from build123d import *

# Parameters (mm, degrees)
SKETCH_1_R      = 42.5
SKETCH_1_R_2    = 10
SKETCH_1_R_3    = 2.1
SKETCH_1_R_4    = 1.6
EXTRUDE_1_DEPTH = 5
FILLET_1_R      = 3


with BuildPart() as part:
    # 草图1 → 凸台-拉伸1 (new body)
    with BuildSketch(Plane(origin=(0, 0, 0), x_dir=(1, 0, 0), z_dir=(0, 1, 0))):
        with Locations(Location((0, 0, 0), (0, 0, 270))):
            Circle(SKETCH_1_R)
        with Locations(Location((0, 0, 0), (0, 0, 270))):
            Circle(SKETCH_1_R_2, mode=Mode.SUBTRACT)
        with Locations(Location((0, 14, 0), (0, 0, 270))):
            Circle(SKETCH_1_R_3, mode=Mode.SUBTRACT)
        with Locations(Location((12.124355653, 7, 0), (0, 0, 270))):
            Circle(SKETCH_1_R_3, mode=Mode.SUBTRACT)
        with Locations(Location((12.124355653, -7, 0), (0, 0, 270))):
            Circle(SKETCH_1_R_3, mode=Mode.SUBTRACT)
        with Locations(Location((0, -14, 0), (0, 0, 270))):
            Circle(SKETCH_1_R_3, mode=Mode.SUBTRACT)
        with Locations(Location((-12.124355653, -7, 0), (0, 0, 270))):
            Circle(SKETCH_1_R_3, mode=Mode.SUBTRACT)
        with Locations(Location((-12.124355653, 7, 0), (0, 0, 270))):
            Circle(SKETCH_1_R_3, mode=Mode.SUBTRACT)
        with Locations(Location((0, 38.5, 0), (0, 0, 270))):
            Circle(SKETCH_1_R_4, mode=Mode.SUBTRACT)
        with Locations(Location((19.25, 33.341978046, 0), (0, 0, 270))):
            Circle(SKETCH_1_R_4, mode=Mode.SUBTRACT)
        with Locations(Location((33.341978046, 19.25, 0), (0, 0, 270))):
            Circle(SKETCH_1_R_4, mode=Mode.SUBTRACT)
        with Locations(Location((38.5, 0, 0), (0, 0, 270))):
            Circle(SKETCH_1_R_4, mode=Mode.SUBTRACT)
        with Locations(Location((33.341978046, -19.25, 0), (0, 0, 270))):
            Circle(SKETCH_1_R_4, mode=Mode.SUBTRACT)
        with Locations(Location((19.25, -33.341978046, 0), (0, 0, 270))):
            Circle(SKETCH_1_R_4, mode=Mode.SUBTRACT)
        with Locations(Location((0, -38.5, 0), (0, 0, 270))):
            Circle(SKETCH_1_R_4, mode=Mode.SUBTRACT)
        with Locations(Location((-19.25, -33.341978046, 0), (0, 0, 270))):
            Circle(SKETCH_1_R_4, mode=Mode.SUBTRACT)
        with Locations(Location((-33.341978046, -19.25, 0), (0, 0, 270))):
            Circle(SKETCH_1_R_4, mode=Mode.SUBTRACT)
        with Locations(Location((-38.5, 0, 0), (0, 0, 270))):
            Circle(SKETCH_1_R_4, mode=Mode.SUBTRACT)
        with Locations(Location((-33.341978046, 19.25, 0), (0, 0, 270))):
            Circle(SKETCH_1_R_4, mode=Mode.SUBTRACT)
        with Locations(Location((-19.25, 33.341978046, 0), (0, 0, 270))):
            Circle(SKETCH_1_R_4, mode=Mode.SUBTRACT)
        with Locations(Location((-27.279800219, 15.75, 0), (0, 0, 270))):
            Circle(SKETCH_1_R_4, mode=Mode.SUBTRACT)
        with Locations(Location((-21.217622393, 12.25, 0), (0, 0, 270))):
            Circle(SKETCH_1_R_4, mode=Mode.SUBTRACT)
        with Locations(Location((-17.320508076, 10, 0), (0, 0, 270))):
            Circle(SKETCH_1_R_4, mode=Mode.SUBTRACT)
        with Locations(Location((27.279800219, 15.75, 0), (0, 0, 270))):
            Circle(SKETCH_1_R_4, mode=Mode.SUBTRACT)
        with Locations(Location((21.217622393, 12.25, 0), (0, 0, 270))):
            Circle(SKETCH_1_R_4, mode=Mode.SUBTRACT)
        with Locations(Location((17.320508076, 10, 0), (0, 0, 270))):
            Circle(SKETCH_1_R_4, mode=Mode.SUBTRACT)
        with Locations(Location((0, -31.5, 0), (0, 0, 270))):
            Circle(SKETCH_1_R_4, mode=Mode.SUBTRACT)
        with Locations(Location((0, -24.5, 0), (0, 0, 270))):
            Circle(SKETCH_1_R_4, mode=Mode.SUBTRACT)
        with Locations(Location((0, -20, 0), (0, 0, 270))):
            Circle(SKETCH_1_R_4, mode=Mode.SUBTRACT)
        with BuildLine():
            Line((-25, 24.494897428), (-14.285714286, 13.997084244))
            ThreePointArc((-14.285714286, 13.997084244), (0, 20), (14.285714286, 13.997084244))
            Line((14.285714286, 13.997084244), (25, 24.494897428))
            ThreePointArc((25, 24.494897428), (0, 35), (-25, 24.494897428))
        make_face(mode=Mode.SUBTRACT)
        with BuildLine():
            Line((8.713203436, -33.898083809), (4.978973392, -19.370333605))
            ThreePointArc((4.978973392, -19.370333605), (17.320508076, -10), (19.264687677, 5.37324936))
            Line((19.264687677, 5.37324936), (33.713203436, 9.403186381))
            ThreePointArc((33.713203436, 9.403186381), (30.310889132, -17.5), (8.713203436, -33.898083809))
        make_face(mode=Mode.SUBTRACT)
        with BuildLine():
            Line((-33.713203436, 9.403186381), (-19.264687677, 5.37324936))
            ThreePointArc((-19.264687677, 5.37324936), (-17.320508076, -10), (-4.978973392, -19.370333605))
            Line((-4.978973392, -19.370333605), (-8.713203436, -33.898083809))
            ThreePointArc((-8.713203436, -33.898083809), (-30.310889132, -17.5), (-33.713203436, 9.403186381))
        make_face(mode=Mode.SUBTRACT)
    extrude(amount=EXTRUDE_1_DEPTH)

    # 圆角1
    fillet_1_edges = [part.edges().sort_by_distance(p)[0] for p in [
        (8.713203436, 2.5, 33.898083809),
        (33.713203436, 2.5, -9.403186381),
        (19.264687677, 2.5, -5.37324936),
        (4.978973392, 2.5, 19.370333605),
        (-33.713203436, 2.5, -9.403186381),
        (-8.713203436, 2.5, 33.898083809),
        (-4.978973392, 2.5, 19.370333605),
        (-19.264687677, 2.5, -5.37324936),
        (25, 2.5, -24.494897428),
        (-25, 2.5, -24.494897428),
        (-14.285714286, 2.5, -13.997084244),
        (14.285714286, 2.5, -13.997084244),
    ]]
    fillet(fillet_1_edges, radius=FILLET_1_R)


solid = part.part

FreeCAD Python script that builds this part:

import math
import FreeCAD as App
import Part
import Sketcher

V = App.Vector
Q = App.Units.Quantity


def edges_at(feature, points):
    """Names of the edges that pass closest to the given points."""
    edges = feature.Shape.Edges
    near = lambda p: min(range(len(edges)), key=lambda i: edges[i].distToShape(Part.Vertex(*p))[0])
    return sorted({f"Edge{near(p) + 1}" for p in points})

doc = App.newDocument("Part")
params = doc.addObject("Spreadsheet::Sheet", "Params")
for row, (alias, value) in enumerate([
    ("sketch1_diameter", "85 mm"),
    ("sketch1_diameter2", "20 mm"),
    ("sketch1_radius", "35 mm"),
    ("sketch1_radius2", "20 mm"),
    ("sketch1_diameter3", "3.2 mm"),
    ("pad1_length", "5 mm"),
    ("fillet_radius", "3 mm"),
], start=1):
    params.set(f"A{row}", alias)
    params.set(f"B{row}", "=" + value)
    params.setAlias(f"B{row}", alias)

body = doc.addObject("PartDesign::Body", "Body")

# Sketch on XZ plane
sketch1 = body.newObject("Sketcher::SketchObject", "Sketch")
sketch1.AttachmentSupport = (doc.getObject("XZ_Plane"), [""])
sketch1.MapMode = "FlatFace"
sketch1.addGeometry([
    Part.Circle(V(0, 0, 0), V(0, 0, 1), 42.5),  # 0
    Part.Circle(V(-33.3, -19.2, 0), V(0, 0, 1), 1.6),  # 1
    Part.Circle(V(-27.3, -15.8, 0), V(0, 0, 1), 1.6),  # 2
    Part.Circle(V(-21.2, -12.2, 0), V(0, 0, 1), 1.6),  # 3
    Part.Circle(V(-19.2, -33.3, 0), V(0, 0, 1), 1.6),  # 4
    Part.Circle(V(0, -38.5, 0), V(0, 0, 1), 1.6),  # 5
    Part.LineSegment(V(-14.3, -14, 0), V(-25, -24.5, 0)),  # 6
    Part.ArcOfCircle(Part.Circle(V(0, 0, 0), V(0, 0, 1), 35), math.radians(-136), math.radians(-44)),  # 7
    Part.LineSegment(V(25, -24.5, 0), V(14.3, -14, 0)),  # 8
    Part.ArcOfCircle(Part.Circle(V(0, 0, 0), V(0, 0, 1), 20), math.radians(-136), math.radians(-44)),  # 9
    Part.Circle(V(-17.3, -10, 0), V(0, 0, 1), 1.6),  # 10
    Part.Circle(V(-12.1, -7, 0), V(0, 0, 1), 2.1),  # 11
    Part.Circle(V(0, -14, 0), V(0, 0, 1), 2.1),  # 12
    Part.Circle(V(-38.5, 0, 0), V(0, 0, 1), 1.6),  # 13
    Part.Circle(V(-33.3, 19.2, 0), V(0, 0, 1), 1.6),  # 14
    Part.Circle(V(-12.1, 7, 0), V(0, 0, 1), 2.1),  # 15
    Part.ArcOfCircle(Part.Circle(V(0, 0, 0), V(0, 0, 1), 35), math.radians(104), math.radians(196)),  # 16
    Part.LineSegment(V(-33.7, -9.4, 0), V(-19.3, -5.4, 0)),  # 17
    Part.ArcOfCircle(Part.Circle(V(0, 0, 0), V(0, 0, 1), 20), math.radians(104), math.radians(196)),  # 18
    Part.LineSegment(V(-5, 19.4, 0), V(-8.7, 33.9, 0)),  # 19
    Part.Circle(V(0, 0, 0), V(0, 0, 1), 10),  # 20
    Part.Circle(V(-19.2, 33.3, 0), V(0, 0, 1), 1.6),  # 21
    Part.Circle(V(19.2, -33.3, 0), V(0, 0, 1), 1.6),  # 22
    Part.Circle(V(12.1, -7, 0), V(0, 0, 1), 2.1),  # 23
    Part.Circle(V(17.3, -10, 0), V(0, 0, 1), 1.6),  # 24
    Part.Circle(V(21.2, -12.2, 0), V(0, 0, 1), 1.6),  # 25
    Part.Circle(V(27.3, -15.8, 0), V(0, 0, 1), 1.6),  # 26
    Part.Circle(V(33.3, -19.2, 0), V(0, 0, 1), 1.6),  # 27
    Part.Circle(V(38.5, 0, 0), V(0, 0, 1), 1.6),  # 28
    Part.Circle(V(0, 14, 0), V(0, 0, 1), 2.1),  # 29
    Part.Circle(V(0, 20, 0), V(0, 0, 1), 1.6),  # 30
    Part.Circle(V(12.1, 7, 0), V(0, 0, 1), 2.1),  # 31
    Part.ArcOfCircle(Part.Circle(V(0, 0, 0), V(0, 0, 1), 35), math.radians(-16), math.radians(76)),  # 32
    Part.LineSegment(V(8.7, 33.9, 0), V(5, 19.4, 0)),  # 33
    Part.ArcOfCircle(Part.Circle(V(0, 0, 0), V(0, 0, 1), 20), math.radians(-16), math.radians(76)),  # 34
    Part.LineSegment(V(19.3, -5.4, 0), V(33.7, -9.4, 0)),  # 35
    Part.Circle(V(0, 24.5, 0), V(0, 0, 1), 1.6),  # 36
    Part.Circle(V(0, 31.5, 0), V(0, 0, 1), 1.6),  # 37
    Part.Circle(V(0, 38.5, 0), V(0, 0, 1), 1.6),  # 38
    Part.Circle(V(19.2, 33.3, 0), V(0, 0, 1), 1.6),  # 39
    Part.Circle(V(33.3, 19.2, 0), V(0, 0, 1), 1.6),  # 40
], False)
sketch1.addConstraint([
    Sketcher.Constraint("Coincident", 6, 2, 7, 1),
    Sketcher.Constraint("Coincident", 7, 2, 8, 1),
    Sketcher.Constraint("Coincident", 8, 2, 9, 2),
    Sketcher.Constraint("Coincident", 9, 1, 6, 1),
    Sketcher.Constraint("Coincident", 16, 2, 17, 1),
    Sketcher.Constraint("Coincident", 17, 2, 18, 2),
    Sketcher.Constraint("Coincident", 18, 1, 19, 1),
    Sketcher.Constraint("Coincident", 19, 2, 16, 1),
    Sketcher.Constraint("Coincident", 32, 2, 33, 1),
    Sketcher.Constraint("Coincident", 33, 2, 34, 2),
    Sketcher.Constraint("Coincident", 34, 1, 35, 1),
    Sketcher.Constraint("Coincident", 35, 2, 32, 1),
    Sketcher.Constraint("Coincident", 0, 3, -1, 1),
    Sketcher.Constraint("Coincident", 7, 3, -1, 1),
    Sketcher.Constraint("Coincident", 9, 3, -1, 1),
    Sketcher.Constraint("Coincident", 16, 3, -1, 1),
    Sketcher.Constraint("Coincident", 18, 3, -1, 1),
    Sketcher.Constraint("Coincident", 20, 3, -1, 1),
    Sketcher.Constraint("Coincident", 32, 3, -1, 1),
    Sketcher.Constraint("Coincident", 34, 3, -1, 1),
    Sketcher.Constraint("Equal", 1, 2),
    Sketcher.Constraint("Equal", 2, 3),
    Sketcher.Constraint("Equal", 3, 4),
    Sketcher.Constraint("Equal", 4, 5),
    Sketcher.Constraint("Equal", 5, 10),
    Sketcher.Constraint("Equal", 11, 12),
    Sketcher.Constraint("Equal", 10, 13),
    Sketcher.Constraint("Equal", 13, 14),
    Sketcher.Constraint("Equal", 12, 15),
    Sketcher.Constraint("Equal", 7, 16),
    Sketcher.Constraint("Equal", 9, 18),
    Sketcher.Constraint("Equal", 14, 21),
    Sketcher.Constraint("Equal", 21, 22),
    Sketcher.Constraint("Equal", 15, 23),
    Sketcher.Constraint("Equal", 22, 24),
    Sketcher.Constraint("Equal", 24, 25),
    Sketcher.Constraint("Equal", 25, 26),
    Sketcher.Constraint("Equal", 26, 27),
    Sketcher.Constraint("Equal", 27, 28),
    Sketcher.Constraint("Equal", 23, 29),
    Sketcher.Constraint("Equal", 28, 30),
    Sketcher.Constraint("Equal", 29, 31),
    Sketcher.Constraint("Equal", 16, 32),
    Sketcher.Constraint("Equal", 18, 34),
    Sketcher.Constraint("Equal", 30, 36),
    Sketcher.Constraint("Equal", 36, 37),
    Sketcher.Constraint("Equal", 37, 38),
    Sketcher.Constraint("Equal", 38, 39),
    Sketcher.Constraint("Equal", 39, 40),
    Sketcher.Constraint("Symmetric", 21, 3, 22, 3, -1, 1),
    Sketcher.Constraint("Symmetric", 15, 3, 23, 3, -1, 1),
    Sketcher.Constraint("Symmetric", 14, 3, 27, 3, -1, 1),
    Sketcher.Constraint("Symmetric", 13, 3, 28, 3, -1, 1),
    Sketcher.Constraint("Symmetric", 12, 3, 29, 3, -1, 1),
    Sketcher.Constraint("Symmetric", 11, 3, 31, 3, -1, 1),
    Sketcher.Constraint("Symmetric", 5, 3, 38, 3, -1, 1),
    Sketcher.Constraint("Symmetric", 4, 3, 39, 3, -1, 1),
    Sketcher.Constraint("Symmetric", 1, 3, 40, 3, -1, 1),
    Sketcher.Constraint("Symmetric", 4, 3, 22, 3, -2),
    Sketcher.Constraint("Symmetric", 11, 3, 23, 3, -2),
    Sketcher.Constraint("Symmetric", 10, 3, 24, 3, -2),
    Sketcher.Constraint("Symmetric", 3, 3, 25, 3, -2),
    Sketcher.Constraint("Symmetric", 2, 3, 26, 3, -2),
    Sketcher.Constraint("Symmetric", 1, 3, 27, 3, -2),
    Sketcher.Constraint("PointOnObject", 5, 3, -2),
    Sketcher.Constraint("PointOnObject", 12, 3, -2),
    Sketcher.Constraint("PointOnObject", 13, 3, -1),
    Sketcher.Constraint("PointOnObject", 30, 3, -2),
    Sketcher.Constraint("PointOnObject", 36, 3, -2),
    Sketcher.Constraint("PointOnObject", 37, 3, -2),
    Sketcher.Constraint("Horizontal", 6, 2, 7, 2),
    Sketcher.Constraint("Horizontal", 8, 2, 9, 1),
    Sketcher.Constraint("Horizontal", 19, 2, 32, 2),
    Sketcher.Constraint("Horizontal", 18, 1, 33, 2),
    Sketcher.Constraint("Horizontal", 17, 2, 34, 1),
    Sketcher.Constraint("Horizontal", 16, 2, 35, 2),
    Sketcher.Constraint("Diameter", 0, Q("85 mm")),
    Sketcher.Constraint("Diameter", 20, Q("20 mm")),
    Sketcher.Constraint("Radius", 7, Q("35 mm")),
    Sketcher.Constraint("Radius", 9, Q("20 mm")),
    Sketcher.Constraint("Diameter", 1, Q("3.2 mm")),
    Sketcher.Constraint("Diameter", 11, Q("4.2 mm")),
    Sketcher.Constraint("DistanceY", 10, 3, -1, 1, Q("10 mm")),
    Sketcher.Constraint("DistanceY", 11, 3, -1, 1, Q("7 mm")),
    Sketcher.Constraint("DistanceY", 12, 3, -1, 1, Q("14 mm")),
    Sketcher.Constraint("DistanceY", -1, 1, 30, 3, Q("20 mm")),
    Sketcher.Constraint("DistanceX", 6, 2, -1, 1, Q("25 mm")),
    Sketcher.Constraint("DistanceY", 1, 3, 3, 3, Q("7 mm")),
    Sketcher.Constraint("DistanceY", 2, 3, 14, 3, Q("35 mm")),
    Sketcher.Constraint("DistanceY", 36, 3, 37, 3, Q("7 mm")),
    Sketcher.Constraint("DistanceY", 37, 3, 38, 3, Q("7 mm")),
    Sketcher.Constraint("DistanceY", 5, 3, -1, 1, Q("38.5 mm")),
    Sketcher.Constraint("DistanceX", 13, 3, -1, 1, Q("38.5 mm")),
    Sketcher.Constraint("DistanceY", 1, 3, 2, 3, Q("3.5 mm")),
    Sketcher.Constraint("DistanceX", 4, 3, 22, 3, Q("38.5 mm")),
    Sketcher.Constraint("DistanceX", 2, 3, -1, 1, Q("27.2798 mm")),
    Sketcher.Constraint("DistanceX", 1, 3, -1, 1, Q("33.341978 mm")),
    Sketcher.Constraint("DistanceY", 4, 3, -1, 1, Q("33.341978 mm")),
    Sketcher.Constraint("DistanceX", 10, 3, -1, 1, Q("17.320508 mm")),
    Sketcher.Constraint("DistanceY", 17, 2, -1, 1, Q("5.373249 mm")),
    Sketcher.Constraint("DistanceX", 8, 2, 25, 3, Q("6.931908 mm")),
    Sketcher.Constraint("DistanceX", 23, 3, 8, 2, Q("2.161359 mm")),
    Sketcher.Constraint("DistanceX", 16, 2, 3, 3, Q("12.495581 mm")),
    Sketcher.Constraint("DistanceX", 19, 2, 18, 1, Q("3.73423 mm")),
    Sketcher.Constraint("DistanceX", 3, 3, -1, 1, Q("21.217622 mm")),
    Sketcher.Constraint("DistanceX", 18, 1, -1, 1, Q("4.978973 mm")),
])
sketch1.setExpression("Constraints[76]", "Params.sketch1_diameter")
sketch1.setExpression("Constraints[77]", "Params.sketch1_diameter2")
sketch1.setExpression("Constraints[78]", "Params.sketch1_radius")
sketch1.setExpression("Constraints[79]", "Params.sketch1_radius2")
sketch1.setExpression("Constraints[80]", "Params.sketch1_diameter3")
pad1 = body.newObject("PartDesign::Pad", "Pad")
pad1.Profile = sketch1
pad1.setExpression("Length", "Params.pad1_length")
pad1.Reversed = True
doc.recompute()

fillet = body.newObject("PartDesign::Fillet", "Fillet")
fillet.Base = (pad1, edges_at(pad1, [
    (8.713, 2.5, 33.898),
    (33.713, 2.5, -9.403),
    (19.265, 2.5, -5.373),
    (4.979, 2.5, 19.37),
    (-33.713, 2.5, -9.403),
    (-8.713, 2.5, 33.898),
    (-4.979, 2.5, 19.37),
    (-19.265, 2.5, -5.373),
    (25, 2.5, -24.495),
    (-25, 2.5, -24.495),
    (-14.286, 2.5, -13.997),
    (14.286, 2.5, -13.997),
]))
fillet.setExpression("Radius", "Params.fillet_radius")

doc.recompute()
